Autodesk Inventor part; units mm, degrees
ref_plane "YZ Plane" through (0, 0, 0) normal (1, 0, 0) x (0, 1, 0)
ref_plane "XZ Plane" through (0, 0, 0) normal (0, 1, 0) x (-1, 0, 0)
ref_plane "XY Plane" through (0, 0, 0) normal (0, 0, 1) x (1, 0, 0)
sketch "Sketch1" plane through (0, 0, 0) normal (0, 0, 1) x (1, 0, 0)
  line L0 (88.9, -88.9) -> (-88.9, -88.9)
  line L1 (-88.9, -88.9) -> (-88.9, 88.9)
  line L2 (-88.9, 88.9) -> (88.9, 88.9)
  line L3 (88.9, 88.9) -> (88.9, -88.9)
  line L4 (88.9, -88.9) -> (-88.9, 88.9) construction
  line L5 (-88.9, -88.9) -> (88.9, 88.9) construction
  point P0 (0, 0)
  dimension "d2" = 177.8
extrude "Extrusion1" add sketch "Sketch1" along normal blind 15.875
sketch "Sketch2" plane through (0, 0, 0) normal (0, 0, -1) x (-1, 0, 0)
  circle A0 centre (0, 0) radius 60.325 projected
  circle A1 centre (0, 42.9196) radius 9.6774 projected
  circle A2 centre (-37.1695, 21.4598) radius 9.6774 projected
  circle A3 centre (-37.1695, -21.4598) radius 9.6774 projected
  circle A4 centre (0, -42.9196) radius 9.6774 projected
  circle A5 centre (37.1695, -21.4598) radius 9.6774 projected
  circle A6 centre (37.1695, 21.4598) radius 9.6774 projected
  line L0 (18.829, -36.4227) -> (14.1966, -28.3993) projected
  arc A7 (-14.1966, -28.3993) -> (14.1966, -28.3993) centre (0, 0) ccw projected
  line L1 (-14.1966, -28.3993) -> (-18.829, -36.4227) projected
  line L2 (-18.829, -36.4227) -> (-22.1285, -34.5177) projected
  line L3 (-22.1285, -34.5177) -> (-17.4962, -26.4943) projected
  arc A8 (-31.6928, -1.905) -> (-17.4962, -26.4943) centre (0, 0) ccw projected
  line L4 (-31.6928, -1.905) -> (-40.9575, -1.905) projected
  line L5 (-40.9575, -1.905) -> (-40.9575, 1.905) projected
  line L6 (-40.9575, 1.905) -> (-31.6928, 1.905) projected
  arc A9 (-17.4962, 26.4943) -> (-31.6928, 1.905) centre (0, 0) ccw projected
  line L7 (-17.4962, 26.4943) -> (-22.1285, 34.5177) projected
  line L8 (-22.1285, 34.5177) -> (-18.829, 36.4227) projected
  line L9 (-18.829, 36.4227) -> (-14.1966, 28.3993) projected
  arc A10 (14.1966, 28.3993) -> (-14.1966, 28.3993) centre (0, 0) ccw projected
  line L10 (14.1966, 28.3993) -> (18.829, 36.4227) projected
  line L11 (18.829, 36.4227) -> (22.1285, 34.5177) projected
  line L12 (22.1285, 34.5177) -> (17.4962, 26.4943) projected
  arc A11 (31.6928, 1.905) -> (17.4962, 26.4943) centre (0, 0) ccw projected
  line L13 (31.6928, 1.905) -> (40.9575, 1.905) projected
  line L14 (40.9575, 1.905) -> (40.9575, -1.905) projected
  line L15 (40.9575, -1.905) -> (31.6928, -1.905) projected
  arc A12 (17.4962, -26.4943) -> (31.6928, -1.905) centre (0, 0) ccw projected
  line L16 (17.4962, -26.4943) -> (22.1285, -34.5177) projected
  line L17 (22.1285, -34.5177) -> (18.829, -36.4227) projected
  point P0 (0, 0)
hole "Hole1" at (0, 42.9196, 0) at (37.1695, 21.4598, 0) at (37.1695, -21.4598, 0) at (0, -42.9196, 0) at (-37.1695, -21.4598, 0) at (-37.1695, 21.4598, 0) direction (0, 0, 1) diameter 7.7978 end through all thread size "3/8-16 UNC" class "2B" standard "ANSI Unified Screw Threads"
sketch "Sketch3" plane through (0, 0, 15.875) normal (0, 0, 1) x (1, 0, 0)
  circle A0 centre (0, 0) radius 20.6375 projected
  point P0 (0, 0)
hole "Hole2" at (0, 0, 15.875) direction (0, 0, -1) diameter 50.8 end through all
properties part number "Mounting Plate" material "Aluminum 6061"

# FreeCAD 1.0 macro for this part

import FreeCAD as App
import Part
import Sketcher

V = App.Vector
Q = App.Units.Quantity


def add_polygon(sketch, points):
    """Adds a closed chain of lines whose ends are joined by coincident constraints."""
    first, n = sketch.GeometryCount, len(points)
    for a, b in zip(points, points[1:] + points[:1]):
        sketch.addGeometry(Part.LineSegment(App.Vector(*a, 0), App.Vector(*b, 0)), False)
    for i in range(n):
        sketch.addConstraint(Sketcher.Constraint("Coincident", first + i, 2, first + (i + 1) % n, 1))

doc = App.newDocument("Part")
body = doc.addObject("PartDesign::Body", "Body")

sketch1 = doc.addObject("Sketcher::SketchObject", "Sketch")
body.addObject(sketch1)
sketch1.AttachmentSupport = (doc.XY_Plane, [""])
sketch1.MapMode = "FlatFace"
add_polygon(sketch1, [(-89, -89), (89, -89), (89, 89), (-89, 89)])
sketch1.addConstraint(Sketcher.Constraint("Horizontal", 0))
sketch1.addConstraint(Sketcher.Constraint("Vertical", 1))
sketch1.addConstraint(Sketcher.Constraint("Horizontal", 2))
sketch1.addConstraint(Sketcher.Constraint("Vertical", 3))
sketch1.addConstraint(Sketcher.Constraint("Symmetric", 0, 2, 2, 2, -1, 1))
sketch1.addConstraint(Sketcher.Constraint("Equal", 2, 1))
sketch1.addConstraint(Sketcher.Constraint("DistanceX", 0, 1, 0, 2, Q("7 in")))
pad1 = doc.addObject("PartDesign::Pad", "Pad")
body.addObject(pad1)
pad1.Profile = sketch1
pad1.Length = Q("0.625 in")

sketch2 = doc.addObject("Sketcher::SketchObject", "Sketch001")
body.addObject(sketch2)
sketch2.AttachmentSupport = (doc.XY_Plane, [""])
sketch2.MapMode = "FlatFace"
sketch2.addGeometry(Part.Circle(V(0, 42.9, 0), V(0, 0, 1), 3.9), False)
sketch2.addGeometry(Part.Circle(V(37.2, 21.5, 0), V(0, 0, 1), 3.9), False)
sketch2.addGeometry(Part.Circle(V(37.2, -21.5, 0), V(0, 0, 1), 3.9), False)
sketch2.addGeometry(Part.Circle(V(0, -42.9, 0), V(0, 0, 1), 3.9), False)
sketch2.addGeometry(Part.Circle(V(-37.2, -21.5, 0), V(0, 0, 1), 3.9), False)
sketch2.addGeometry(Part.Circle(V(-37.2, 21.5, 0), V(0, 0, 1), 3.9), False)
sketch2.addConstraint(Sketcher.Constraint("Equal", 0, 1))
sketch2.addConstraint(Sketcher.Constraint("Equal", 1, 2))
sketch2.addConstraint(Sketcher.Constraint("Equal", 2, 3))
sketch2.addConstraint(Sketcher.Constraint("Equal", 3, 4))
sketch2.addConstraint(Sketcher.Constraint("Equal", 4, 5))
sketch2.addConstraint(Sketcher.Constraint("Symmetric", 0, 3, 3, 3, -1, 1))
sketch2.addConstraint(Sketcher.Constraint("Symmetric", 1, 3, 4, 3, -1, 1))
sketch2.addConstraint(Sketcher.Constraint("Symmetric", 2, 3, 5, 3, -1, 1))
sketch2.addConstraint(Sketcher.Constraint("Symmetric", 2, 3, 4, 3, -2))
sketch2.addConstraint(Sketcher.Constraint("PointOnObject", 0, 3, -2))
sketch2.addConstraint(Sketcher.Constraint("Diameter", 0, Q("0.307 in")))
sketch2.addConstraint(Sketcher.Constraint("DistanceY", 3, 3, 0, 3, Q("3.3795 in")))
sketch2.addConstraint(Sketcher.Constraint("DistanceX", -1, 1, 1, 3, Q("37.1695 mm")))
sketch2.addConstraint(Sketcher.Constraint("DistanceY", -1, 1, 1, 3, Q("21.4598 mm")))
doc.recompute()
hole = doc.addObject("PartDesign::Hole", "Hole")
body.addObject(hole)
hole.Profile = sketch2
hole.ThreadType = "None"
hole.Diameter = Q("0.307 in")
hole.DepthType = "ThroughAll"
hole.Reversed = True

sketch3 = doc.addObject("Sketcher::SketchObject", "Sketch002")
body.addObject(sketch3)
sketch3.AttachmentSupport = (doc.XY_Plane, [""])
sketch3.MapMode = "FlatFace"
sketch3.AttachmentOffset = App.Placement(V(0, 0, 0.625 * 25.4), App.Rotation())
sketch3.addGeometry(Part.Circle(V(0, 0, 0), V(0, 0, 1), 25), False)
sketch3.addConstraint(Sketcher.Constraint("Coincident", 0, 3, -1, 1))
sketch3.addConstraint(Sketcher.Constraint("Diameter", 0, Q("2 in")))
doc.recompute()
hole2 = doc.addObject("PartDesign::Hole", "Hole001")
body.addObject(hole2)
hole2.Profile = sketch3
hole2.ThreadType = "None"
hole2.Diameter = Q("2 in")
hole2.DepthType = "ThroughAll"

doc.recompute()
